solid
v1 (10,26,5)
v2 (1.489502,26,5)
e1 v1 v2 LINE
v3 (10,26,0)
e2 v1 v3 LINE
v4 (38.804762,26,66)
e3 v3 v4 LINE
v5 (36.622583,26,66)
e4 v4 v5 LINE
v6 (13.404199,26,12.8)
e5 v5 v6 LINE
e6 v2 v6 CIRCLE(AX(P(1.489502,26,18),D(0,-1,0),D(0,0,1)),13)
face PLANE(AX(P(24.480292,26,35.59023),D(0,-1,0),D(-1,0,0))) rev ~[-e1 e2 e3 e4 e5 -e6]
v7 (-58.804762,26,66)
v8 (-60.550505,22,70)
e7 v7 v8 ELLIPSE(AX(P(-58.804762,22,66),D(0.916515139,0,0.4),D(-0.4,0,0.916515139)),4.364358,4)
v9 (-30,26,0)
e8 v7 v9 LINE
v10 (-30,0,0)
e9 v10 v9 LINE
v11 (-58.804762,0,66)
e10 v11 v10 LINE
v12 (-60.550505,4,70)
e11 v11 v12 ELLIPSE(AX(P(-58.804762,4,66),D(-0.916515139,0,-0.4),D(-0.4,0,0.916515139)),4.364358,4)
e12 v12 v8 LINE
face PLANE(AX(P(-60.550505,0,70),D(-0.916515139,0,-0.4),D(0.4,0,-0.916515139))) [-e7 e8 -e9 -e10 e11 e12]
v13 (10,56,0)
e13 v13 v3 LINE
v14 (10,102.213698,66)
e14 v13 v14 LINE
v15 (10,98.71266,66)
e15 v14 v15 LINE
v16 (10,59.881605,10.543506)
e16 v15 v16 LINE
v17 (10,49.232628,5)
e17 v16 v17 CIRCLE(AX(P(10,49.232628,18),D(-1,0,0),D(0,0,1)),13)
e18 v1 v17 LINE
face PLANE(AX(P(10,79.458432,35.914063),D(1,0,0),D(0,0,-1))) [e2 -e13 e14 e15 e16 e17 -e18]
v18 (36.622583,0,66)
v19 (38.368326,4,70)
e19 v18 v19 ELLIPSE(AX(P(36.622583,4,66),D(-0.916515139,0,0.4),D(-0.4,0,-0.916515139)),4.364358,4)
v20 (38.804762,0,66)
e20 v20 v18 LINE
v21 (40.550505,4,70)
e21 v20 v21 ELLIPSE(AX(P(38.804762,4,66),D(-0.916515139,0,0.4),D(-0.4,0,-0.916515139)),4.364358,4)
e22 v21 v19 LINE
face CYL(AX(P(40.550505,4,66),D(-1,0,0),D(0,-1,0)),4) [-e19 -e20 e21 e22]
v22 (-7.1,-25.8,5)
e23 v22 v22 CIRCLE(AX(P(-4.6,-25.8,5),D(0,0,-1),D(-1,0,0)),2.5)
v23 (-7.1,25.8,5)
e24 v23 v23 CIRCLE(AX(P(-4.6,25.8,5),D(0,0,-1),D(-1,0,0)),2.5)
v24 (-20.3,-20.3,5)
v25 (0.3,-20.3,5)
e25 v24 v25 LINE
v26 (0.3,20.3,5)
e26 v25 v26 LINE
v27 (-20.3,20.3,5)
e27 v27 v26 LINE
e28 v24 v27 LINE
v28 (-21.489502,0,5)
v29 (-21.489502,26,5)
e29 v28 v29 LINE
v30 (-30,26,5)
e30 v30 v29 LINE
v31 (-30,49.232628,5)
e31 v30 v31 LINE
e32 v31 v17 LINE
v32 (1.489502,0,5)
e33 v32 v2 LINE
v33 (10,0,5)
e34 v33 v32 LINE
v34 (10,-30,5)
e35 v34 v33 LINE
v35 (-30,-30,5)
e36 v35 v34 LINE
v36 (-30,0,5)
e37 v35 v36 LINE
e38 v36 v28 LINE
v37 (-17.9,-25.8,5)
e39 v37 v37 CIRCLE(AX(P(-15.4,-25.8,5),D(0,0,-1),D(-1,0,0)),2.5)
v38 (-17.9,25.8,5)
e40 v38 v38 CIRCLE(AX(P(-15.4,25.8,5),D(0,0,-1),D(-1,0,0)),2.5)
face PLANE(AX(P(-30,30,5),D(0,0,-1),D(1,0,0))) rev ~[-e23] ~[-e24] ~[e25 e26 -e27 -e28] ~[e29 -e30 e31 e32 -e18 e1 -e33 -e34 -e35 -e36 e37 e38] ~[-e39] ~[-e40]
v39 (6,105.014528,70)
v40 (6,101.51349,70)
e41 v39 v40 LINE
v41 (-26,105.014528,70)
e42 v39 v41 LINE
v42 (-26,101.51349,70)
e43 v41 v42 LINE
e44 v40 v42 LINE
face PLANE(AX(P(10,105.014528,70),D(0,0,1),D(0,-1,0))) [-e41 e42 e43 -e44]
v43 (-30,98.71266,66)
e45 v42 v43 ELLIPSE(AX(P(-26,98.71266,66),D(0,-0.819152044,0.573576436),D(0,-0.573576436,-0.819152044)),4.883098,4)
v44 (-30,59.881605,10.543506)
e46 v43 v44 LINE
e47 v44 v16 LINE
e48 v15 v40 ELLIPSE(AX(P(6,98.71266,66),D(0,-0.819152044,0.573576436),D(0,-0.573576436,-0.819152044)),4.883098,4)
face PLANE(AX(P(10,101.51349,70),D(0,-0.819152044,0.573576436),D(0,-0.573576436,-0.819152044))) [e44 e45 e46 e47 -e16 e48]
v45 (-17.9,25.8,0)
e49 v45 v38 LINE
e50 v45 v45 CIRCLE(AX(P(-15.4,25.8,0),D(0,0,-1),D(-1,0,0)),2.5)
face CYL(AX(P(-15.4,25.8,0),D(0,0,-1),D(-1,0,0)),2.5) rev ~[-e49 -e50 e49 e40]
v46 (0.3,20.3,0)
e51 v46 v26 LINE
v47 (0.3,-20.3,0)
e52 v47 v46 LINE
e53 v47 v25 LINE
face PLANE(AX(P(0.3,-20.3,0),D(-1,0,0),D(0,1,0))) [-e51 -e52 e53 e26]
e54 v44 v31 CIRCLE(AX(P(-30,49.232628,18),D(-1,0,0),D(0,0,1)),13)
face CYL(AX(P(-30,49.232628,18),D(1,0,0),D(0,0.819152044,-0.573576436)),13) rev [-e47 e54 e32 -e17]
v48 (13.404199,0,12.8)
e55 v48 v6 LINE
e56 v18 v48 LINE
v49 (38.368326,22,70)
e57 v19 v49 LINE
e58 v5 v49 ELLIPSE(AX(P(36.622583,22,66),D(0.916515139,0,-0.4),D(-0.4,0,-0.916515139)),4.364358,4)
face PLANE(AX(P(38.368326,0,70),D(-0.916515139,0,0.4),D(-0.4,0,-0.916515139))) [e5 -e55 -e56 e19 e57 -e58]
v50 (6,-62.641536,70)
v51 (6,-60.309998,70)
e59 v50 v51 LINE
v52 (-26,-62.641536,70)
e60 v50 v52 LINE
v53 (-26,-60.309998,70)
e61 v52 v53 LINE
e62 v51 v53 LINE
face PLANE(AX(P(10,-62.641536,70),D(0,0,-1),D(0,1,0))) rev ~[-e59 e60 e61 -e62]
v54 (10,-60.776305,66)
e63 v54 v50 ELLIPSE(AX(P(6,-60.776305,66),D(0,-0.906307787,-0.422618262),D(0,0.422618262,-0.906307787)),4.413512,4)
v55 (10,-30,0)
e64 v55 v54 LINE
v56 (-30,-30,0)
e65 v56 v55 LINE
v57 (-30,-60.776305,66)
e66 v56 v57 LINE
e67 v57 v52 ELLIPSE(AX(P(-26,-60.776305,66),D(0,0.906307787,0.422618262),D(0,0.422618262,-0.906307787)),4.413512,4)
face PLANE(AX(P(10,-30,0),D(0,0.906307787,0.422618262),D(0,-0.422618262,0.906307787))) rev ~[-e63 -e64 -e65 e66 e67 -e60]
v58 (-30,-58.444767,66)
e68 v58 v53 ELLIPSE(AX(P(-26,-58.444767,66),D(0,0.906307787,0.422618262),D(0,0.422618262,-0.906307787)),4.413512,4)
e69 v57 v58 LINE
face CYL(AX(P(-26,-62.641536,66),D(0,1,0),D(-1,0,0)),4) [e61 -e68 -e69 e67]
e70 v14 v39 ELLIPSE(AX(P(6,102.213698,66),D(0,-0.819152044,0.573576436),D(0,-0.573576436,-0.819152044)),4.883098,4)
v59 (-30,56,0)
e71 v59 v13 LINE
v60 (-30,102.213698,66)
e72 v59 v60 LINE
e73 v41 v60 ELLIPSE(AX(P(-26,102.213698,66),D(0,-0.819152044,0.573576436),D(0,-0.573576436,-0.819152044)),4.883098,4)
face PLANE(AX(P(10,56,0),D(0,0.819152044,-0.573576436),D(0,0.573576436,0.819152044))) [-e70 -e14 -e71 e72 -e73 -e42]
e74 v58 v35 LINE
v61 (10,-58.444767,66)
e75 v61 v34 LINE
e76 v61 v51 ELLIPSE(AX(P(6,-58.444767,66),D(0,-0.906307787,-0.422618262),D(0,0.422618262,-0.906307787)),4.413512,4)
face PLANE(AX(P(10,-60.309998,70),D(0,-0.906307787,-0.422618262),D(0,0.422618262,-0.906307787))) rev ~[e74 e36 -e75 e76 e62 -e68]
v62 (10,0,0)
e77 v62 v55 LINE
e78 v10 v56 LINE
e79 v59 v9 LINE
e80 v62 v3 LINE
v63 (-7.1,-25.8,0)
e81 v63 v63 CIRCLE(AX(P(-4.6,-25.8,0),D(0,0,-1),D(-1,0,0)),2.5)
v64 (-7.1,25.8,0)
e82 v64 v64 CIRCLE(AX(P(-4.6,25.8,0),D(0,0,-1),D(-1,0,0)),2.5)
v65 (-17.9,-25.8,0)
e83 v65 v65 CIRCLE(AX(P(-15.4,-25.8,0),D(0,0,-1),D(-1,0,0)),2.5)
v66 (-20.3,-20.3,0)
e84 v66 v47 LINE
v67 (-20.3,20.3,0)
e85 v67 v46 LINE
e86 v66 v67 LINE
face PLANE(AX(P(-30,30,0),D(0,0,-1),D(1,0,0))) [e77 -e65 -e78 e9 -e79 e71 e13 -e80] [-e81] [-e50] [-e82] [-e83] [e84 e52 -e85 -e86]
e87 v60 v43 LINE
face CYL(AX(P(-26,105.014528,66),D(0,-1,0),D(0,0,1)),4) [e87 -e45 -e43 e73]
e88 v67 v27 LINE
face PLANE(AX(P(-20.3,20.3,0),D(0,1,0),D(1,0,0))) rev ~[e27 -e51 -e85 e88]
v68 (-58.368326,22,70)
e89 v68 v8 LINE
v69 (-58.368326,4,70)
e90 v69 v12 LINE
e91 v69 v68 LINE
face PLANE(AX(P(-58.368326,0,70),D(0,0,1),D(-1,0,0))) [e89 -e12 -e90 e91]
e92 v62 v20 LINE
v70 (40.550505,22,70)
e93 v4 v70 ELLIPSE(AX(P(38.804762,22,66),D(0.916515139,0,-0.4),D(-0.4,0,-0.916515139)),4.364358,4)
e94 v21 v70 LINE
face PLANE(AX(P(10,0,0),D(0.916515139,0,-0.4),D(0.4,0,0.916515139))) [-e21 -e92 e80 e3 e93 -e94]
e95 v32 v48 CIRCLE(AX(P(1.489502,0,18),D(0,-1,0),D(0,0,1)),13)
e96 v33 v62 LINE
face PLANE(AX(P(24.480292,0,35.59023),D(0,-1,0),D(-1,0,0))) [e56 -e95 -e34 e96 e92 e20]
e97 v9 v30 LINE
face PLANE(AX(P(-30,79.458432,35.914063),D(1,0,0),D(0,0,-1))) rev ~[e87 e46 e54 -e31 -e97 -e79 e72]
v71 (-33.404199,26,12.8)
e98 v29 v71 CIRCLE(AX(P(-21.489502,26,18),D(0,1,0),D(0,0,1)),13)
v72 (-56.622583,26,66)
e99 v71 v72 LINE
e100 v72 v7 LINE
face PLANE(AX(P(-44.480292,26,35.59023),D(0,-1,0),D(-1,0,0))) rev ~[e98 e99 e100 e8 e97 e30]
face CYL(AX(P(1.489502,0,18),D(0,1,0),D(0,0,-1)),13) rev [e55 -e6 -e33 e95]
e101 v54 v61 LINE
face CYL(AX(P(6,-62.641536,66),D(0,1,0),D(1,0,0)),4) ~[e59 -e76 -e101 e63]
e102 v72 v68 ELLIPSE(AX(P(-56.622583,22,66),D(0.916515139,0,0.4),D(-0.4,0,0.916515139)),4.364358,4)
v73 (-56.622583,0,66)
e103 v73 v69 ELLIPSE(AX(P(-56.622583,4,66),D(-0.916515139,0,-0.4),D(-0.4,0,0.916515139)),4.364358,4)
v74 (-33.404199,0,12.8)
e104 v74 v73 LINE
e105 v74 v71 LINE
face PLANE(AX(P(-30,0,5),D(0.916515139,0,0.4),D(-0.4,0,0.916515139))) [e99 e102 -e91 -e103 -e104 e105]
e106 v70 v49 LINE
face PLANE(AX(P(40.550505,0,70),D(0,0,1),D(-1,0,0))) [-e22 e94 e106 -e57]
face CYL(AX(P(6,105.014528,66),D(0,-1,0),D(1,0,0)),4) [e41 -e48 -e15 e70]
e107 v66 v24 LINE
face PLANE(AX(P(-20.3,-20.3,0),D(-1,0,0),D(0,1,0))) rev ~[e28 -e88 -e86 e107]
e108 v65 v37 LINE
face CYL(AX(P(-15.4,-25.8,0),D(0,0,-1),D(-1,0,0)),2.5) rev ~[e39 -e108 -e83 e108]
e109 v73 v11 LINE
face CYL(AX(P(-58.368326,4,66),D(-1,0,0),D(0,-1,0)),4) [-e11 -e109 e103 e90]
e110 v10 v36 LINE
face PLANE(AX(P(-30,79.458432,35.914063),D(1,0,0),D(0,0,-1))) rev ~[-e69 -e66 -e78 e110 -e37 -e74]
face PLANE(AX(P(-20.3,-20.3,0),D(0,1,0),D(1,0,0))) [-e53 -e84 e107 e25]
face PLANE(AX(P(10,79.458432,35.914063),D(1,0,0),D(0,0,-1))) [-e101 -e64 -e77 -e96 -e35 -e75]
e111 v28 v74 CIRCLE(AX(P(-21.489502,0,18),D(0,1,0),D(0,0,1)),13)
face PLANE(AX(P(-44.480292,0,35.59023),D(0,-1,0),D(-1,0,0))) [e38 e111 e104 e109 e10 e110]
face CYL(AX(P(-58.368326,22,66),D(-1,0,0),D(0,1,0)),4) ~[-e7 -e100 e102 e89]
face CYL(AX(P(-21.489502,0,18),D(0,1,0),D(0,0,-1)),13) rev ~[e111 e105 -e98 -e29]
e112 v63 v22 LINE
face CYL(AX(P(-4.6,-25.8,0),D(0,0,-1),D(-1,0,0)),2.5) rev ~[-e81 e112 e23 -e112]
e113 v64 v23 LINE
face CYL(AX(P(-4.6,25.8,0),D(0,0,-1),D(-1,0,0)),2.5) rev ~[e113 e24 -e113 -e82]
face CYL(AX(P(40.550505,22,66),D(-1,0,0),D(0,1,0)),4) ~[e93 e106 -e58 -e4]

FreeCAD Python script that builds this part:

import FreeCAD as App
import Part
import Sketcher
from FreeCAD import Vector
Q = App.Units.Quantity


def edges_at(feature, points):
    """Names of the edges that pass closest to the given points."""
    edges = feature.Shape.Edges
    near = lambda p: min(range(len(edges)), key=lambda i: edges[i].distToShape(Part.Vertex(*p))[0])
    return sorted({f"Edge{near(p) + 1}" for p in points})

doc = App.newDocument("Part")
body = doc.addObject("PartDesign::Body", "Body")

sketch1 = body.newObject("Sketcher::SketchObject", "Sketch")
sketch1.AttachmentSupport = (doc.getObject("XY_Plane"), [""])
sketch1.MapMode = "FlatFace"
sketch1.addGeometry(Part.LineSegment(Vector(-30, 30, 0), Vector(-30, -30, 0)), False)
sketch1.addGeometry(Part.LineSegment(Vector(-30, -30, 0), Vector(10, -30, 0)), False)
sketch1.addGeometry(Part.LineSegment(Vector(10, -30, 0), Vector(10, 30, 0)), False)
sketch1.addGeometry(Part.LineSegment(Vector(10, 30, 0), Vector(-30, 30, 0)), False)
sketch1.addGeometry(Part.LineSegment(Vector(0, -20, 0), Vector(-20, -20, 0)), False)
sketch1.addGeometry(Part.LineSegment(Vector(-20, -20, 0), Vector(-20, 20, 0)), False)
sketch1.addGeometry(Part.LineSegment(Vector(-20, 20, 0), Vector(0, 20, 0)), False)
sketch1.addGeometry(Part.LineSegment(Vector(0, 20, 0), Vector(0, -20, 0)), False)
sketch1.addConstraint(Sketcher.Constraint("Coincident", 0, 2, 1, 1))
sketch1.addConstraint(Sketcher.Constraint("Coincident", 1, 2, 2, 1))
sketch1.addConstraint(Sketcher.Constraint("Coincident", 2, 2, 3, 1))
sketch1.addConstraint(Sketcher.Constraint("Coincident", 3, 2, 0, 1))
sketch1.addConstraint(Sketcher.Constraint("Coincident", 4, 2, 5, 1))
sketch1.addConstraint(Sketcher.Constraint("Coincident", 5, 2, 6, 1))
sketch1.addConstraint(Sketcher.Constraint("Coincident", 6, 2, 7, 1))
sketch1.addConstraint(Sketcher.Constraint("Coincident", 7, 2, 4, 1))
sketch1.addConstraint(Sketcher.Constraint("Vertical", 0))
sketch1.addConstraint(Sketcher.Constraint("Horizontal", 1))
sketch1.addConstraint(Sketcher.Constraint("Vertical", 2))
sketch1.addConstraint(Sketcher.Constraint("Horizontal", 3))
sketch1.addConstraint(Sketcher.Constraint("Horizontal", 4))
sketch1.addConstraint(Sketcher.Constraint("Vertical", 5))
sketch1.addConstraint(Sketcher.Constraint("Horizontal", 6))
sketch1.addConstraint(Sketcher.Constraint("Vertical", 7))
sketch1.addConstraint(Sketcher.Constraint("DistanceX", 1, 1, 1, 2, 40.0))
sketch1.addConstraint(Sketcher.Constraint("DistanceY", 0, 2, 0, 1, 60.0))
sketch1.addConstraint(Sketcher.Constraint("DistanceX", 4, 2, 4, 1, 20.6))
sketch1.addConstraint(Sketcher.Constraint("DistanceY", 5, 1, 5, 2, 40.6))
sketch1.addConstraint(Sketcher.Constraint("DistanceX", 0, 2, -1, 1, 30.0))
sketch1.addConstraint(Sketcher.Constraint("DistanceY", 0, 2, -1, 1, 30.0))
sketch1.addConstraint(Sketcher.Constraint("DistanceX", 4, 2, -1, 1, 20.3))
sketch1.addConstraint(Sketcher.Constraint("DistanceY", 4, 2, -1, 1, 20.3))
pad1 = body.newObject("PartDesign::Pad", "Pad")
pad1.Profile = sketch1
pad1.Length = 5

sketch2 = body.newObject("Sketcher::SketchObject", "Sketch001")
sketch2.AttachmentSupport = (doc.getObject("XZ_Plane"), [""])
sketch2.MapMode = "FlatFace"
sketch2.AttachmentOffset = App.Placement(Vector(0, 0, -30), App.Rotation())
sketch2.addGeometry(Part.LineSegment(Vector(-30, 0, 0), Vector(-30, 5, 0)), False)
sketch2.addGeometry(Part.LineSegment(Vector(-30, 5, 0), Vector(10, 5, 0)), False)
sketch2.addGeometry(Part.LineSegment(Vector(10, 5, 0), Vector(10, 0, 0)), False)
sketch2.addGeometry(Part.LineSegment(Vector(10, 0, 0), Vector(-30, 0, 0)), False)
sketch2.addConstraint(Sketcher.Constraint("Coincident", 0, 2, 1, 1))
sketch2.addConstraint(Sketcher.Constraint("Coincident", 1, 2, 2, 1))
sketch2.addConstraint(Sketcher.Constraint("Coincident", 2, 2, 3, 1))
sketch2.addConstraint(Sketcher.Constraint("Coincident", 3, 2, 0, 1))
sketch2.addConstraint(Sketcher.Constraint("Vertical", 0))
sketch2.addConstraint(Sketcher.Constraint("Horizontal", 1))
sketch2.addConstraint(Sketcher.Constraint("Vertical", 2))
sketch2.addConstraint(Sketcher.Constraint("Horizontal", 3))
sketch2.addConstraint(Sketcher.Constraint("PointOnObject", 2, 2, -1))
sketch2.addConstraint(Sketcher.Constraint("DistanceX", 1, 1, 1, 2, 40.0))
sketch2.addConstraint(Sketcher.Constraint("DistanceY", 0, 1, 0, 2, 5.0))
sketch2.addConstraint(Sketcher.Constraint("DistanceX", 0, 2, -1, 1, 30.0))
pad2 = body.newObject("PartDesign::Pad", "Pad001")
pad2.Profile = sketch2
pad2.Length = 26
pad2.Reversed = True

sketch3 = body.newObject("Sketcher::SketchObject", "Sketch002")
sketch3.AttachmentSupport = (doc.getObject("YZ_Plane"), [""])
sketch3.MapMode = "FlatFace"
sketch3.AttachmentOffset = App.Placement(Vector(0, 0, 10), App.Rotation())
sketch3.addGeometry(Part.LineSegment(Vector(56, 0, 0), Vector(105, 70, 0)), False)
sketch3.addGeometry(Part.LineSegment(Vector(105, 70, 0), Vector(101.5, 70, 0)), False)
sketch3.addGeometry(Part.LineSegment(Vector(101.5, 70, 0), Vector(56, 5, 0)), False)
sketch3.addGeometry(Part.LineSegment(Vector(56, 5, 0), Vector(56, 0, 0)), False)
sketch3.addGeometry(Part.LineSegment(Vector(-30, 0, 0), Vector(-30, 5, 0)), False)
sketch3.addGeometry(Part.LineSegment(Vector(-30, 5, 0), Vector(-60.3, 70, 0)), False)
sketch3.addGeometry(Part.LineSegment(Vector(-60.3, 70, 0), Vector(-62.6, 70, 0)), False)
sketch3.addGeometry(Part.LineSegment(Vector(-62.6, 70, 0), Vector(-30, 0, 0)), False)
sketch3.addConstraint(Sketcher.Constraint("Coincident", 0, 2, 1, 1))
sketch3.addConstraint(Sketcher.Constraint("Coincident", 1, 2, 2, 1))
sketch3.addConstraint(Sketcher.Constraint("Coincident", 2, 2, 3, 1))
sketch3.addConstraint(Sketcher.Constraint("Coincident", 3, 2, 0, 1))
sketch3.addConstraint(Sketcher.Constraint("Coincident", 4, 2, 5, 1))
sketch3.addConstraint(Sketcher.Constraint("Coincident", 5, 2, 6, 1))
sketch3.addConstraint(Sketcher.Constraint("Coincident", 6, 2, 7, 1))
sketch3.addConstraint(Sketcher.Constraint("Coincident", 7, 2, 4, 1))
sketch3.addConstraint(Sketcher.Constraint("Horizontal", 1))
sketch3.addConstraint(Sketcher.Constraint("Vertical", 3))
sketch3.addConstraint(Sketcher.Constraint("Vertical", 4))
sketch3.addConstraint(Sketcher.Constraint("Horizontal", 6))
sketch3.addConstraint(Sketcher.Constraint("PointOnObject", 3, 2, -1))
sketch3.addConstraint(Sketcher.Constraint("PointOnObject", 7, 2, -1))
sketch3.addConstraint(Sketcher.Constraint("Parallel", 0, 2))
sketch3.addConstraint(Sketcher.Constraint("Parallel", 5, 7))
sketch3.addConstraint(Sketcher.Constraint("Horizontal", 2, 2, 4, 2))
sketch3.addConstraint(Sketcher.Constraint("Horizontal", 1, 2, 5, 2))
sketch3.addConstraint(Sketcher.Constraint("DistanceY", 3, 2, 3, 1, 5.0))
sketch3.addConstraint(Sketcher.Constraint("Angle", 0, Q("55 deg")))
sketch3.addConstraint(Sketcher.Constraint("Angle", 5, Q("115 deg")))
sketch3.addConstraint(Sketcher.Constraint("DistanceY", -1, 1, 0, 2, 70.0))
sketch3.addConstraint(Sketcher.Constraint("DistanceX", -1, 1, 2, 2, 56.0))
sketch3.addConstraint(Sketcher.Constraint("DistanceX", 4, 2, -1, 1, 30.0))
pad3 = body.newObject("PartDesign::Pad", "Pad002")
pad3.Profile = sketch3
pad3.Length = 40
pad3.Reversed = True

sketch4 = body.newObject("Sketcher::SketchObject", "Sketch003")
sketch4.AttachmentSupport = (doc.getObject("XZ_Plane"), [""])
sketch4.MapMode = "FlatFace"
sketch4.addGeometry(Part.LineSegment(Vector(-58.4, 70, 0), Vector(-30, 5, 0)), False)
sketch4.addGeometry(Part.LineSegment(Vector(-30, 5, 0), Vector(-30, 0, 0)), False)
sketch4.addGeometry(Part.LineSegment(Vector(-30, 0, 0), Vector(-60.6, 70, 0)), False)
sketch4.addGeometry(Part.LineSegment(Vector(-60.6, 70, 0), Vector(-58.4, 70, 0)), False)
sketch4.addGeometry(Part.LineSegment(Vector(40.6, 70, 0), Vector(10, 0, 0)), False)
sketch4.addGeometry(Part.LineSegment(Vector(10, 0, 0), Vector(10, 5, 0)), False)
sketch4.addGeometry(Part.LineSegment(Vector(10, 5, 0), Vector(38.4, 70, 0)), False)
sketch4.addGeometry(Part.LineSegment(Vector(38.4, 70, 0), Vector(40.6, 70, 0)), False)
sketch4.addConstraint(Sketcher.Constraint("Coincident", 0, 2, 1, 1))
sketch4.addConstraint(Sketcher.Constraint("Coincident", 1, 2, 2, 1))
sketch4.addConstraint(Sketcher.Constraint("Coincident", 2, 2, 3, 1))
sketch4.addConstraint(Sketcher.Constraint("Coincident", 3, 2, 0, 1))
sketch4.addConstraint(Sketcher.Constraint("Coincident", 4, 2, 5, 1))
sketch4.addConstraint(Sketcher.Constraint("Coincident", 5, 2, 6, 1))
sketch4.addConstraint(Sketcher.Constraint("Coincident", 6, 2, 7, 1))
sketch4.addConstraint(Sketcher.Constraint("Coincident", 7, 2, 4, 1))
sketch4.addConstraint(Sketcher.Constraint("Vertical", 1))
sketch4.addConstraint(Sketcher.Constraint("Horizontal", 3))
sketch4.addConstraint(Sketcher.Constraint("Vertical", 5))
sketch4.addConstraint(Sketcher.Constraint("Horizontal", 7))
sketch4.addConstraint(Sketcher.Constraint("PointOnObject", 1, 2, -1))
sketch4.addConstraint(Sketcher.Constraint("PointOnObject", 4, 2, -1))
sketch4.addConstraint(Sketcher.Constraint("Parallel", 0, 2))
sketch4.addConstraint(Sketcher.Constraint("Parallel", 4, 6))
sketch4.addConstraint(Sketcher.Constraint("Horizontal", 0, 2, 5, 2))
sketch4.addConstraint(Sketcher.Constraint("Horizontal", 3, 2, 6, 2))
sketch4.addConstraint(Sketcher.Constraint("Equal", 3, 7))
sketch4.addConstraint(Sketcher.Constraint("DistanceY", 1, 2, 1, 1, 5.0))
sketch4.addConstraint(Sketcher.Constraint("DistanceX", 0, 2, -1, 1, 30.0))
sketch4.addConstraint(Sketcher.Constraint("DistanceY", -1, 1, 2, 2, 70.0))
sketch4.addConstraint(Sketcher.Constraint("DistanceX", -1, 1, 4, 2, 10.0))
sketch4.addConstraint(Sketcher.Constraint("DistanceX", 3, 1, 3, 2, 2.182179))
pad4 = body.newObject("PartDesign::Pad", "Pad003")
pad4.Profile = sketch4
pad4.Length = 26
pad4.Reversed = True
doc.recompute()

fillet = body.newObject("PartDesign::Fillet", "Fillet")
fillet.Base = (pad4, edges_at(pad4, [(-10, 56, 5), (10, 13, 5), (-30, 13, 5)]))
fillet.Radius = 13
doc.recompute()

fillet2 = body.newObject("PartDesign::Fillet", "Fillet001")
fillet2.Base = (fillet, edges_at(fillet, [
    (10, 103.264, 70),
    (-30, 103.264, 70),
    (10, -61.476, 70),
    (-30, -61.476, 70),
    (-59.459, 0, 70),
    (-59.459, 26, 70),
    (39.459, 0, 70),
    (39.459, 26, 70),
]))
fillet2.Radius = 4

sketch5 = body.newObject("Sketcher::SketchObject", "Sketch004")
sketch5.AttachmentSupport = (doc.getObject("XY_Plane"), [""])
sketch5.MapMode = "FlatFace"
sketch5.addGeometry(Part.Circle(Vector(-4.6, -25.8, 0), Vector(0, 0, 1), 2.5), False)
sketch5.addConstraint(Sketcher.Constraint("Diameter", 0, 5.0))
sketch5.addConstraint(Sketcher.Constraint("DistanceX", 0, 3, -1, 1, 4.6))
sketch5.addConstraint(Sketcher.Constraint("DistanceY", 0, 3, -1, 1, 25.8))
pocket1 = body.newObject("PartDesign::Pocket", "Pocket")
pocket1.Profile = sketch5
pocket1.Type = "UpToFirst"
pocket1.Reversed = True

sketch6 = body.newObject("Sketcher::SketchObject", "Sketch005")
sketch6.AttachmentSupport = (doc.getObject("XY_Plane"), [""])
sketch6.MapMode = "FlatFace"
sketch6.addGeometry(Part.Circle(Vector(-15.4, -25.8, 0), Vector(0, 0, 1), 2.5), False)
sketch6.addConstraint(Sketcher.Constraint("Diameter", 0, 5.0))
sketch6.addConstraint(Sketcher.Constraint("DistanceX", 0, 3, -1, 1, 15.4))
sketch6.addConstraint(Sketcher.Constraint("DistanceY", 0, 3, -1, 1, 25.8))
pocket2 = body.newObject("PartDesign::Pocket", "Pocket001")
pocket2.Profile = sketch6
pocket2.Type = "UpToFirst"
pocket2.Reversed = True

sketch7 = body.newObject("Sketcher::SketchObject", "Sketch006")
sketch7.AttachmentSupport = (doc.getObject("XY_Plane"), [""])
sketch7.MapMode = "FlatFace"
sketch7.addGeometry(Part.Circle(Vector(-4.6, 25.8, 0), Vector(0, 0, 1), 2.5), False)
sketch7.addConstraint(Sketcher.Constraint("Diameter", 0, 5.0))
sketch7.addConstraint(Sketcher.Constraint("DistanceX", 0, 3, -1, 1, 4.6))
sketch7.addConstraint(Sketcher.Constraint("DistanceY", -1, 1, 0, 3, 25.8))
pocket3 = body.newObject("PartDesign::Pocket", "Pocket002")
pocket3.Profile = sketch7
pocket3.Type = "UpToFirst"
pocket3.Reversed = True

sketch8 = body.newObject("Sketcher::SketchObject", "Sketch007")
sketch8.AttachmentSupport = (doc.getObject("XY_Plane"), [""])
sketch8.MapMode = "FlatFace"
sketch8.addGeometry(Part.Circle(Vector(-15.4, 25.8, 0), Vector(0, 0, 1), 2.5), False)
sketch8.addConstraint(Sketcher.Constraint("Diameter", 0, 5.0))
sketch8.addConstraint(Sketcher.Constraint("DistanceX", 0, 3, -1, 1, 15.4))
sketch8.addConstraint(Sketcher.Constraint("DistanceY", -1, 1, 0, 3, 25.8))
pocket4 = body.newObject("PartDesign::Pocket", "Pocket003")
pocket4.Profile = sketch8
pocket4.Type = "UpToFirst"
pocket4.Reversed = True

doc.recompute()
